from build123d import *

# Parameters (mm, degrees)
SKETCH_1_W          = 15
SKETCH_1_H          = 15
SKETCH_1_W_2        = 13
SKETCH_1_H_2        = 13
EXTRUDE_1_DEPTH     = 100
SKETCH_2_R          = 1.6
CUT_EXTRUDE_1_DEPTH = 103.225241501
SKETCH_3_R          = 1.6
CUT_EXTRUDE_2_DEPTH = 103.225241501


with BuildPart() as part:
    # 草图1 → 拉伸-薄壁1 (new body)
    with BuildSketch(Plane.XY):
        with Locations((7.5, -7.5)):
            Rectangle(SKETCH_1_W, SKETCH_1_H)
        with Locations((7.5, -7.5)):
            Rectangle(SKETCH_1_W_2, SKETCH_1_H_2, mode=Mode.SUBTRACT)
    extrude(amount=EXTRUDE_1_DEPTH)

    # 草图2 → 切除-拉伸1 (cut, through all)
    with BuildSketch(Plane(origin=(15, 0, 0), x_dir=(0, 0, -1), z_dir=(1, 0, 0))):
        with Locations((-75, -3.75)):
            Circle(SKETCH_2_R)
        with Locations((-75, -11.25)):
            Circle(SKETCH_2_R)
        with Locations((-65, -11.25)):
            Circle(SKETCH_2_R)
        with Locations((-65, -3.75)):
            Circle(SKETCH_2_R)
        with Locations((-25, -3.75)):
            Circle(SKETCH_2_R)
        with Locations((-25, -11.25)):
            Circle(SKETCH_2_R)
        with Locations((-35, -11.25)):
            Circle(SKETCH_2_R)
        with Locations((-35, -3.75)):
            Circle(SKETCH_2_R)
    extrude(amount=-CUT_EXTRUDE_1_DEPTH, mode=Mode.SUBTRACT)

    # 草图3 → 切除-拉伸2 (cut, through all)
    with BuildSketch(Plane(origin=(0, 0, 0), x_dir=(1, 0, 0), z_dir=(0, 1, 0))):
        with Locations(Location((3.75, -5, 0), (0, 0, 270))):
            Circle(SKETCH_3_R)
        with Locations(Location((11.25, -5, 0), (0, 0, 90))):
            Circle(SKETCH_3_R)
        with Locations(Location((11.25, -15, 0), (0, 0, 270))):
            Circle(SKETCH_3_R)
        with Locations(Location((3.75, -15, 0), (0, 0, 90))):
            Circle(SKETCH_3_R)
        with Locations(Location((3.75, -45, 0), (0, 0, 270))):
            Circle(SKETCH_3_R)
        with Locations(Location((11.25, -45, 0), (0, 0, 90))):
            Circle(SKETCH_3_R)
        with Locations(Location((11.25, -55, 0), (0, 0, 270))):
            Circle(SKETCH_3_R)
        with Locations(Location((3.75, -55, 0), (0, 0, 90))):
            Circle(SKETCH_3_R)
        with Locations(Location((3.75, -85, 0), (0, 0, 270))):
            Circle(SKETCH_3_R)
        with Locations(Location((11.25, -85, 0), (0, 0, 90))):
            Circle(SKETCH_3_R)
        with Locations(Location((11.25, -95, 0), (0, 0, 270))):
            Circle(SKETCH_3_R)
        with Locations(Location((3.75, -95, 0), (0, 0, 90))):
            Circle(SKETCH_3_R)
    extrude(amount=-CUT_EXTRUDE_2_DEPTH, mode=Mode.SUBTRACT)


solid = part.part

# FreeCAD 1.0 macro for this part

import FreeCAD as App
import Part
import Sketcher

V = App.Vector

doc = App.newDocument("Part")
params = doc.addObject("Spreadsheet::Sheet", "Params")
for row, (alias, value) in enumerate([
    ("sketch1_width", "15 mm"),
    ("sketch1_width2", "13 mm"),
    ("pad1_length", "100 mm"),
    ("sketch2_diameter", "3.2 mm"),
    ("sketch3_diameter", "3.2 mm"),
], start=1):
    params.set(f"A{row}", alias)
    params.set(f"B{row}", "=" + value)
    params.setAlias(f"B{row}", alias)

body = doc.addObject("PartDesign::Body", "Body")

# Sketch on XY plane
sketch1 = body.newObject("Sketcher::SketchObject", "Sketch")
sketch1.AttachmentSupport = (doc.getObject("XY_Plane"), [""])
sketch1.MapMode = "FlatFace"
sketch1.addGeometry(Part.LineSegment(V(0, 0, 0), V(0, -15, 0)), False)
sketch1.addGeometry(Part.LineSegment(V(0, -15, 0), V(15, -15, 0)), False)
sketch1.addGeometry(Part.LineSegment(V(15, -15, 0), V(15, 0, 0)), False)
sketch1.addGeometry(Part.LineSegment(V(15, 0, 0), V(0, 0, 0)), False)
sketch1.addGeometry(Part.LineSegment(V(14, -14, 0), V(1, -14, 0)), False)
sketch1.addGeometry(Part.LineSegment(V(1, -14, 0), V(1, -1, 0)), False)
sketch1.addGeometry(Part.LineSegment(V(1, -1, 0), V(14, -1, 0)), False)
sketch1.addGeometry(Part.LineSegment(V(14, -1, 0), V(14, -14, 0)), False)
sketch1.addConstraint(Sketcher.Constraint("Coincident", 0, 2, 1, 1))
sketch1.addConstraint(Sketcher.Constraint("Coincident", 1, 2, 2, 1))
sketch1.addConstraint(Sketcher.Constraint("Coincident", 2, 2, 3, 1))
sketch1.addConstraint(Sketcher.Constraint("Coincident", 3, 2, 0, 1))
sketch1.addConstraint(Sketcher.Constraint("Coincident", 4, 2, 5, 1))
sketch1.addConstraint(Sketcher.Constraint("Coincident", 5, 2, 6, 1))
sketch1.addConstraint(Sketcher.Constraint("Coincident", 6, 2, 7, 1))
sketch1.addConstraint(Sketcher.Constraint("Coincident", 7, 2, 4, 1))
sketch1.addConstraint(Sketcher.Constraint("Vertical", 0))
sketch1.addConstraint(Sketcher.Constraint("Horizontal", 1))
sketch1.addConstraint(Sketcher.Constraint("Vertical", 2))
sketch1.addConstraint(Sketcher.Constraint("Horizontal", 3))
sketch1.addConstraint(Sketcher.Constraint("Horizontal", 4))
sketch1.addConstraint(Sketcher.Constraint("Vertical", 5))
sketch1.addConstraint(Sketcher.Constraint("Horizontal", 6))
sketch1.addConstraint(Sketcher.Constraint("Vertical", 7))
sketch1.addConstraint(Sketcher.Constraint("Coincident", 3, 2, -1, 1))
sketch1.addConstraint(Sketcher.Constraint("Equal", 3, 0))
sketch1.addConstraint(Sketcher.Constraint("Equal", 6, 5))
sketch1.addConstraint(Sketcher.Constraint("DistanceX", 1, 1, 1, 2, 15.0))
sketch1.addConstraint(Sketcher.Constraint("DistanceX", 4, 2, 4, 1, 13.0))
sketch1.addConstraint(Sketcher.Constraint("DistanceX", -1, 1, 4, 2, 1.0))
sketch1.addConstraint(Sketcher.Constraint("DistanceY", 4, 2, -1, 1, 14.0))
sketch1.setExpression("Constraints[19]", "Params.sketch1_width")
sketch1.setExpression("Constraints[20]", "Params.sketch1_width2")
pad1 = body.newObject("PartDesign::Pad", "Pad")
pad1.Profile = sketch1
pad1.setExpression("Length", "Params.pad1_length")

# Sketch on YZ plane
sketch2 = body.newObject("Sketcher::SketchObject", "Sketch001")
sketch2.AttachmentSupport = (doc.getObject("YZ_Plane"), [""])
sketch2.MapMode = "FlatFace"
sketch2.AttachmentOffset = App.Placement(V(0, 0, 15), App.Rotation())
sketch2.addGeometry(Part.Circle(V(-3.75, 75, 0), V(0, 0, 1), 1.6), False)
sketch2.addGeometry(Part.Circle(V(-11.25, 75, 0), V(0, 0, 1), 1.6), False)
sketch2.addGeometry(Part.Circle(V(-11.25, 65, 0), V(0, 0, 1), 1.6), False)
sketch2.addGeometry(Part.Circle(V(-3.75, 65, 0), V(0, 0, 1), 1.6), False)
sketch2.addGeometry(Part.Circle(V(-3.75, 25, 0), V(0, 0, 1), 1.6), False)
sketch2.addGeometry(Part.Circle(V(-11.25, 25, 0), V(0, 0, 1), 1.6), False)
sketch2.addGeometry(Part.Circle(V(-11.25, 35, 0), V(0, 0, 1), 1.6), False)
sketch2.addGeometry(Part.Circle(V(-3.75, 35, 0), V(0, 0, 1), 1.6), False)
sketch2.addConstraint(Sketcher.Constraint("Equal", 0, 1))
sketch2.addConstraint(Sketcher.Constraint("Equal", 1, 2))
sketch2.addConstraint(Sketcher.Constraint("Equal", 2, 3))
sketch2.addConstraint(Sketcher.Constraint("Equal", 3, 4))
sketch2.addConstraint(Sketcher.Constraint("Equal", 4, 5))
sketch2.addConstraint(Sketcher.Constraint("Equal", 5, 6))
sketch2.addConstraint(Sketcher.Constraint("Equal", 6, 7))
sketch2.addConstraint(Sketcher.Constraint("Horizontal", 0, 3, 1, 3))
sketch2.addConstraint(Sketcher.Constraint("Horizontal", 2, 3, 3, 3))
sketch2.addConstraint(Sketcher.Constraint("Horizontal", 4, 3, 5, 3))
sketch2.addConstraint(Sketcher.Constraint("Horizontal", 6, 3, 7, 3))
sketch2.addConstraint(Sketcher.Constraint("Vertical", 1, 3, 2, 3))
sketch2.addConstraint(Sketcher.Constraint("Vertical", 0, 3, 3, 3))
sketch2.addConstraint(Sketcher.Constraint("Vertical", 3, 3, 4, 3))
sketch2.addConstraint(Sketcher.Constraint("Vertical", 2, 3, 5, 3))
sketch2.addConstraint(Sketcher.Constraint("Vertical", 5, 3, 6, 3))
sketch2.addConstraint(Sketcher.Constraint("Vertical", 4, 3, 7, 3))
sketch2.addConstraint(Sketcher.Constraint("Diameter", 0, 3.2))
sketch2.addConstraint(Sketcher.Constraint("DistanceY", -1, 1, 0, 3, 75.0))
sketch2.addConstraint(Sketcher.Constraint("DistanceY", -1, 1, 2, 3, 65.0))
sketch2.addConstraint(Sketcher.Constraint("DistanceY", -1, 1, 4, 3, 25.0))
sketch2.addConstraint(Sketcher.Constraint("DistanceY", -1, 1, 6, 3, 35.0))
sketch2.addConstraint(Sketcher.Constraint("DistanceX", 1, 3, 0, 3, 7.5))
sketch2.addConstraint(Sketcher.Constraint("DistanceX", 0, 3, -1, 1, 3.75))
sketch2.setExpression("Constraints[17]", "Params.sketch2_diameter")
pocket1 = body.newObject("PartDesign::Pocket", "Pocket")
pocket1.Profile = sketch2
pocket1.Type = "ThroughAll"

# Sketch on XZ plane
sketch3 = body.newObject("Sketcher::SketchObject", "Sketch002")
sketch3.AttachmentSupport = (doc.getObject("XZ_Plane"), [""])
sketch3.MapMode = "FlatFace"
sketch3.addGeometry(Part.Circle(V(3.75, 5, 0), V(0, 0, 1), 1.6), False)
sketch3.addGeometry(Part.Circle(V(11.25, 5, 0), V(0, 0, 1), 1.6), False)
sketch3.addGeometry(Part.Circle(V(11.25, 15, 0), V(0, 0, 1), 1.6), False)
sketch3.addGeometry(Part.Circle(V(3.75, 15, 0), V(0, 0, 1), 1.6), False)
sketch3.addGeometry(Part.Circle(V(3.75, 45, 0), V(0, 0, 1), 1.6), False)
sketch3.addGeometry(Part.Circle(V(11.25, 45, 0), V(0, 0, 1), 1.6), False)
sketch3.addGeometry(Part.Circle(V(11.25, 55, 0), V(0, 0, 1), 1.6), False)
sketch3.addGeometry(Part.Circle(V(3.75, 55, 0), V(0, 0, 1), 1.6), False)
sketch3.addGeometry(Part.Circle(V(3.75, 85, 0), V(0, 0, 1), 1.6), False)
sketch3.addGeometry(Part.Circle(V(11.25, 85, 0), V(0, 0, 1), 1.6), False)
sketch3.addGeometry(Part.Circle(V(11.25, 95, 0), V(0, 0, 1), 1.6), False)
sketch3.addGeometry(Part.Circle(V(3.75, 95, 0), V(0, 0, 1), 1.6), False)
sketch3.addConstraint(Sketcher.Constraint("Equal", 0, 1))
sketch3.addConstraint(Sketcher.Constraint("Equal", 1, 2))
sketch3.addConstraint(Sketcher.Constraint("Equal", 2, 3))
sketch3.addConstraint(Sketcher.Constraint("Equal", 3, 4))
sketch3.addConstraint(Sketcher.Constraint("Equal", 4, 5))
sketch3.addConstraint(Sketcher.Constraint("Equal", 5, 6))
sketch3.addConstraint(Sketcher.Constraint("Equal", 6, 7))
sketch3.addConstraint(Sketcher.Constraint("Equal", 7, 8))
sketch3.addConstraint(Sketcher.Constraint("Equal", 8, 9))
sketch3.addConstraint(Sketcher.Constraint("Equal", 9, 10))
sketch3.addConstraint(Sketcher.Constraint("Equal", 10, 11))
sketch3.addConstraint(Sketcher.Constraint("Horizontal", 0, 3, 1, 3))
sketch3.addConstraint(Sketcher.Constraint("Horizontal", 2, 3, 3, 3))
sketch3.addConstraint(Sketcher.Constraint("Horizontal", 4, 3, 5, 3))
sketch3.addConstraint(Sketcher.Constraint("Horizontal", 6, 3, 7, 3))
sketch3.addConstraint(Sketcher.Constraint("Horizontal", 8, 3, 9, 3))
sketch3.addConstraint(Sketcher.Constraint("Horizontal", 10, 3, 11, 3))
sketch3.addConstraint(Sketcher.Constraint("Vertical", 1, 3, 2, 3))
sketch3.addConstraint(Sketcher.Constraint("Vertical", 0, 3, 3, 3))
sketch3.addConstraint(Sketcher.Constraint("Vertical", 3, 3, 4, 3))
sketch3.addConstraint(Sketcher.Constraint("Vertical", 2, 3, 5, 3))
sketch3.addConstraint(Sketcher.Constraint("Vertical", 5, 3, 6, 3))
sketch3.addConstraint(Sketcher.Constraint("Vertical", 4, 3, 7, 3))
sketch3.addConstraint(Sketcher.Constraint("Vertical", 7, 3, 8, 3))
sketch3.addConstraint(Sketcher.Constraint("Vertical", 6, 3, 9, 3))
sketch3.addConstraint(Sketcher.Constraint("Vertical", 9, 3, 10, 3))
sketch3.addConstraint(Sketcher.Constraint("Vertical", 8, 3, 11, 3))
sketch3.addConstraint(Sketcher.Constraint("Diameter", 0, 3.2))
sketch3.addConstraint(Sketcher.Constraint("DistanceY", -1, 1, 0, 3, 5.0))
sketch3.addConstraint(Sketcher.Constraint("DistanceY", -1, 1, 2, 3, 15.0))
sketch3.addConstraint(Sketcher.Constraint("DistanceY", -1, 1, 4, 3, 45.0))
sketch3.addConstraint(Sketcher.Constraint("DistanceY", -1, 1, 6, 3, 55.0))
sketch3.addConstraint(Sketcher.Constraint("DistanceY", -1, 1, 8, 3, 85.0))
sketch3.addConstraint(Sketcher.Constraint("DistanceY", -1, 1, 10, 3, 95.0))
sketch3.addConstraint(Sketcher.Constraint("DistanceX", 0, 3, 1, 3, 7.5))
sketch3.addConstraint(Sketcher.Constraint("DistanceX", -1, 1, 0, 3, 3.75))
sketch3.setExpression("Constraints[27]", "Params.sketch3_diameter")
pocket2 = body.newObject("PartDesign::Pocket", "Pocket001")
pocket2.Profile = sketch3
pocket2.Type = "ThroughAll"
pocket2.Reversed = True

doc.recompute()
